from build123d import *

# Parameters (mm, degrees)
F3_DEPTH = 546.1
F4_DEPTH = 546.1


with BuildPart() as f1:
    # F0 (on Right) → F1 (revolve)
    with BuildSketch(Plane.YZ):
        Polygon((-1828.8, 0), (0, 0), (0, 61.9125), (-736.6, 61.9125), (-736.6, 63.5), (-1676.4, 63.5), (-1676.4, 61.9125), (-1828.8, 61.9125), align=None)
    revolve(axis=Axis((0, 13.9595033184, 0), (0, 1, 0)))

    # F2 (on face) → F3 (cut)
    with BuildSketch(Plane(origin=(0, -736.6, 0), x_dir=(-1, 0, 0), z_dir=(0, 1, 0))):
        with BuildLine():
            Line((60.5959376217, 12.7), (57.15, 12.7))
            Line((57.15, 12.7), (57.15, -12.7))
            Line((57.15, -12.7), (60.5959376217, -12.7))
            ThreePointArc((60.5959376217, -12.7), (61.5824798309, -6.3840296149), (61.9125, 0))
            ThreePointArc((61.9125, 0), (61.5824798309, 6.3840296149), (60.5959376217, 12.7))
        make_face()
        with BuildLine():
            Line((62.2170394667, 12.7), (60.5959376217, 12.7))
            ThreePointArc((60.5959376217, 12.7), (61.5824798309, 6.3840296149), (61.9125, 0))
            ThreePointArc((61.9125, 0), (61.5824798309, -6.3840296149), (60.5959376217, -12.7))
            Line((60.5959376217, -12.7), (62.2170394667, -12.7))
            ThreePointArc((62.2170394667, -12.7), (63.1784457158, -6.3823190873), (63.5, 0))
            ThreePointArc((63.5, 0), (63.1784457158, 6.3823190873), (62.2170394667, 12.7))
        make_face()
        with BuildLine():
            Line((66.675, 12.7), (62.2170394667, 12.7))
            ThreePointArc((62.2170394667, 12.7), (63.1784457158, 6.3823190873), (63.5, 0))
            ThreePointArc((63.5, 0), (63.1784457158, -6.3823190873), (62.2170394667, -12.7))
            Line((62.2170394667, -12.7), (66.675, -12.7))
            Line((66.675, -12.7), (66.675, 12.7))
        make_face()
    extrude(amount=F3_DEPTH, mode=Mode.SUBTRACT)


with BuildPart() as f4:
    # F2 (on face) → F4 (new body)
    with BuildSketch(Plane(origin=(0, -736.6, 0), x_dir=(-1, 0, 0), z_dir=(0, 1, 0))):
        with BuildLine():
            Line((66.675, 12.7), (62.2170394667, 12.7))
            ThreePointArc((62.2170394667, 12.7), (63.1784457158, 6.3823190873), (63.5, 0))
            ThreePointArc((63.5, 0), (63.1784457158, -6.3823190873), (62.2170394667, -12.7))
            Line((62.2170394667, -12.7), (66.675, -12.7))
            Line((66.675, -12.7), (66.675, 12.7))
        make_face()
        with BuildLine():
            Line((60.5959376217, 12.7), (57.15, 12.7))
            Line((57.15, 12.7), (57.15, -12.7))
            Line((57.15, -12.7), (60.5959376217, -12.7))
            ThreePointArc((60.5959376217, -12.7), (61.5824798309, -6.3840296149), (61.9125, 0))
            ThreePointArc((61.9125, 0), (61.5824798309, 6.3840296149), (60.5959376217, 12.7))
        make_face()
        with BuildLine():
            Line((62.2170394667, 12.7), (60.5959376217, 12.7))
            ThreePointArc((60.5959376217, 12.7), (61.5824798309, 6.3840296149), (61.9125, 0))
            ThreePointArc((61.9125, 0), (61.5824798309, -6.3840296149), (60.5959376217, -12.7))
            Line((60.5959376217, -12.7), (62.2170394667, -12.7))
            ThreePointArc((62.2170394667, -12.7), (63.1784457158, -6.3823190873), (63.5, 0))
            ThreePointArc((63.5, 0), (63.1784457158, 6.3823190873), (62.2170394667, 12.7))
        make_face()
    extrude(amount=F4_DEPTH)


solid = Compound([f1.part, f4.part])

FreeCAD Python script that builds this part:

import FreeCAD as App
import Part
import Sketcher
from FreeCAD import Vector
Q = App.Units.Quantity


def add_polygon(sketch, points):
    """Adds a closed chain of lines whose ends are joined by coincident constraints."""
    first, n = sketch.GeometryCount, len(points)
    for a, b in zip(points, points[1:] + points[:1]):
        sketch.addGeometry(Part.LineSegment(App.Vector(*a, 0), App.Vector(*b, 0)), False)
    for i in range(n):
        sketch.addConstraint(Sketcher.Constraint("Coincident", first + i, 2, first + (i + 1) % n, 1))

doc = App.newDocument("Part")
body = doc.addObject("PartDesign::Body", "Body")

# Sketch on YZ plane
sketch1 = body.newObject("Sketcher::SketchObject", "Sketch")
sketch1.AttachmentSupport = (doc.getObject("YZ_Plane"), [""])
sketch1.MapMode = "FlatFace"
add_polygon(sketch1, [(-1828.8, 0), (0, 0), (0, 61.9), (-736.6, 61.9), (-736.6, 63.5), (-1676.4, 63.5), (-1676.4, 61.9), (-1828.8, 61.9)])  # lines 0-7
sketch1.addConstraint([
    Sketcher.Constraint("Horizontal", 0),
    Sketcher.Constraint("Vertical", 1),
    Sketcher.Constraint("Horizontal", 2),
    Sketcher.Constraint("Vertical", 3),
    Sketcher.Constraint("Horizontal", 4),
    Sketcher.Constraint("Vertical", 5),
    Sketcher.Constraint("Horizontal", 6),
    Sketcher.Constraint("Vertical", 7),
    Sketcher.Constraint("Coincident", 0, 2, -1, 1),
    Sketcher.Constraint("Horizontal", 2, 2, 5, 2),
    Sketcher.Constraint("DistanceX", 0, 1, 0, 2, Q("72 in")),
    Sketcher.Constraint("DistanceX", 2, 2, 2, 1, Q("29 in")),
    Sketcher.Constraint("DistanceX", 4, 2, 4, 1, Q("37 in")),
    Sketcher.Constraint("DistanceY", -1, 1, 3, 2, Q("2.5 in")),
    Sketcher.Constraint("DistanceY", 1, 1, 1, 2, Q("2.4375 in")),
])
revolution = body.newObject("PartDesign::Revolution", "Revolution")
revolution.Profile = sketch1
revolution.ReferenceAxis = (sketch1, ["H_Axis"])
revolution.Angle = 360

# Sketch on XZ plane
sketch2 = body.newObject("Sketcher::SketchObject", "Sketch001")
sketch2.AttachmentSupport = (doc.getObject("XZ_Plane"), [""])
sketch2.MapMode = "FlatFace"
sketch2.AttachmentOffset = App.Placement(Vector(0, 0, 29 * 25.4), App.Rotation())
add_polygon(sketch2, [(-57, 13), (-57, -13), (-67, -13), (-67, 13)])  # lines 0-3
sketch2.addConstraint([
    Sketcher.Constraint("Vertical", 0),
    Sketcher.Constraint("Horizontal", 1),
    Sketcher.Constraint("Vertical", 2),
    Sketcher.Constraint("Horizontal", 3),
    Sketcher.Constraint("DistanceY", 0, 2, 0, 1, Q("1 in")),
    Sketcher.Constraint("DistanceY", 0, 2, -1, 1, Q("0.5 in")),
    Sketcher.Constraint("DistanceX", 1, 2, 1, 1, Q("0.375 in")),
    Sketcher.Constraint("DistanceX", 0, 2, -1, 1, Q("2.25 in")),
])
pocket1 = body.newObject("PartDesign::Pocket", "Pocket")
pocket1.Profile = sketch2
pocket1.Length = Q("21.5 in")
body2 = doc.addObject("PartDesign::Body", "Body001")

# Sketch on XZ plane
sketch3 = body2.newObject("Sketcher::SketchObject", "Sketch002")
sketch3.AttachmentSupport = (doc.getObject("XZ_Plane001"), [""])
sketch3.MapMode = "FlatFace"
sketch3.AttachmentOffset = App.Placement(Vector(0, 0, 29 * 25.4), App.Rotation())
add_polygon(sketch3, [(-67, 13), (-57, 13), (-57, -13), (-67, -13)])  # lines 0-3
sketch3.addConstraint([
    Sketcher.Constraint("Horizontal", 0),
    Sketcher.Constraint("Vertical", 1),
    Sketcher.Constraint("Horizontal", 2),
    Sketcher.Constraint("Vertical", 3),
    Sketcher.Constraint("DistanceY", 1, 2, 1, 1, Q("1 in")),
    Sketcher.Constraint("DistanceY", -1, 1, 0, 2, Q("0.5 in")),
    Sketcher.Constraint("DistanceX", 0, 1, 0, 2, Q("0.375 in")),
    Sketcher.Constraint("DistanceX", 0, 2, -1, 1, Q("2.25 in")),
])
pad1 = body2.newObject("PartDesign::Pad", "Pad")
pad1.Profile = sketch3
pad1.Length = Q("21.5 in")
pad1.Reversed = True

doc.recompute()
